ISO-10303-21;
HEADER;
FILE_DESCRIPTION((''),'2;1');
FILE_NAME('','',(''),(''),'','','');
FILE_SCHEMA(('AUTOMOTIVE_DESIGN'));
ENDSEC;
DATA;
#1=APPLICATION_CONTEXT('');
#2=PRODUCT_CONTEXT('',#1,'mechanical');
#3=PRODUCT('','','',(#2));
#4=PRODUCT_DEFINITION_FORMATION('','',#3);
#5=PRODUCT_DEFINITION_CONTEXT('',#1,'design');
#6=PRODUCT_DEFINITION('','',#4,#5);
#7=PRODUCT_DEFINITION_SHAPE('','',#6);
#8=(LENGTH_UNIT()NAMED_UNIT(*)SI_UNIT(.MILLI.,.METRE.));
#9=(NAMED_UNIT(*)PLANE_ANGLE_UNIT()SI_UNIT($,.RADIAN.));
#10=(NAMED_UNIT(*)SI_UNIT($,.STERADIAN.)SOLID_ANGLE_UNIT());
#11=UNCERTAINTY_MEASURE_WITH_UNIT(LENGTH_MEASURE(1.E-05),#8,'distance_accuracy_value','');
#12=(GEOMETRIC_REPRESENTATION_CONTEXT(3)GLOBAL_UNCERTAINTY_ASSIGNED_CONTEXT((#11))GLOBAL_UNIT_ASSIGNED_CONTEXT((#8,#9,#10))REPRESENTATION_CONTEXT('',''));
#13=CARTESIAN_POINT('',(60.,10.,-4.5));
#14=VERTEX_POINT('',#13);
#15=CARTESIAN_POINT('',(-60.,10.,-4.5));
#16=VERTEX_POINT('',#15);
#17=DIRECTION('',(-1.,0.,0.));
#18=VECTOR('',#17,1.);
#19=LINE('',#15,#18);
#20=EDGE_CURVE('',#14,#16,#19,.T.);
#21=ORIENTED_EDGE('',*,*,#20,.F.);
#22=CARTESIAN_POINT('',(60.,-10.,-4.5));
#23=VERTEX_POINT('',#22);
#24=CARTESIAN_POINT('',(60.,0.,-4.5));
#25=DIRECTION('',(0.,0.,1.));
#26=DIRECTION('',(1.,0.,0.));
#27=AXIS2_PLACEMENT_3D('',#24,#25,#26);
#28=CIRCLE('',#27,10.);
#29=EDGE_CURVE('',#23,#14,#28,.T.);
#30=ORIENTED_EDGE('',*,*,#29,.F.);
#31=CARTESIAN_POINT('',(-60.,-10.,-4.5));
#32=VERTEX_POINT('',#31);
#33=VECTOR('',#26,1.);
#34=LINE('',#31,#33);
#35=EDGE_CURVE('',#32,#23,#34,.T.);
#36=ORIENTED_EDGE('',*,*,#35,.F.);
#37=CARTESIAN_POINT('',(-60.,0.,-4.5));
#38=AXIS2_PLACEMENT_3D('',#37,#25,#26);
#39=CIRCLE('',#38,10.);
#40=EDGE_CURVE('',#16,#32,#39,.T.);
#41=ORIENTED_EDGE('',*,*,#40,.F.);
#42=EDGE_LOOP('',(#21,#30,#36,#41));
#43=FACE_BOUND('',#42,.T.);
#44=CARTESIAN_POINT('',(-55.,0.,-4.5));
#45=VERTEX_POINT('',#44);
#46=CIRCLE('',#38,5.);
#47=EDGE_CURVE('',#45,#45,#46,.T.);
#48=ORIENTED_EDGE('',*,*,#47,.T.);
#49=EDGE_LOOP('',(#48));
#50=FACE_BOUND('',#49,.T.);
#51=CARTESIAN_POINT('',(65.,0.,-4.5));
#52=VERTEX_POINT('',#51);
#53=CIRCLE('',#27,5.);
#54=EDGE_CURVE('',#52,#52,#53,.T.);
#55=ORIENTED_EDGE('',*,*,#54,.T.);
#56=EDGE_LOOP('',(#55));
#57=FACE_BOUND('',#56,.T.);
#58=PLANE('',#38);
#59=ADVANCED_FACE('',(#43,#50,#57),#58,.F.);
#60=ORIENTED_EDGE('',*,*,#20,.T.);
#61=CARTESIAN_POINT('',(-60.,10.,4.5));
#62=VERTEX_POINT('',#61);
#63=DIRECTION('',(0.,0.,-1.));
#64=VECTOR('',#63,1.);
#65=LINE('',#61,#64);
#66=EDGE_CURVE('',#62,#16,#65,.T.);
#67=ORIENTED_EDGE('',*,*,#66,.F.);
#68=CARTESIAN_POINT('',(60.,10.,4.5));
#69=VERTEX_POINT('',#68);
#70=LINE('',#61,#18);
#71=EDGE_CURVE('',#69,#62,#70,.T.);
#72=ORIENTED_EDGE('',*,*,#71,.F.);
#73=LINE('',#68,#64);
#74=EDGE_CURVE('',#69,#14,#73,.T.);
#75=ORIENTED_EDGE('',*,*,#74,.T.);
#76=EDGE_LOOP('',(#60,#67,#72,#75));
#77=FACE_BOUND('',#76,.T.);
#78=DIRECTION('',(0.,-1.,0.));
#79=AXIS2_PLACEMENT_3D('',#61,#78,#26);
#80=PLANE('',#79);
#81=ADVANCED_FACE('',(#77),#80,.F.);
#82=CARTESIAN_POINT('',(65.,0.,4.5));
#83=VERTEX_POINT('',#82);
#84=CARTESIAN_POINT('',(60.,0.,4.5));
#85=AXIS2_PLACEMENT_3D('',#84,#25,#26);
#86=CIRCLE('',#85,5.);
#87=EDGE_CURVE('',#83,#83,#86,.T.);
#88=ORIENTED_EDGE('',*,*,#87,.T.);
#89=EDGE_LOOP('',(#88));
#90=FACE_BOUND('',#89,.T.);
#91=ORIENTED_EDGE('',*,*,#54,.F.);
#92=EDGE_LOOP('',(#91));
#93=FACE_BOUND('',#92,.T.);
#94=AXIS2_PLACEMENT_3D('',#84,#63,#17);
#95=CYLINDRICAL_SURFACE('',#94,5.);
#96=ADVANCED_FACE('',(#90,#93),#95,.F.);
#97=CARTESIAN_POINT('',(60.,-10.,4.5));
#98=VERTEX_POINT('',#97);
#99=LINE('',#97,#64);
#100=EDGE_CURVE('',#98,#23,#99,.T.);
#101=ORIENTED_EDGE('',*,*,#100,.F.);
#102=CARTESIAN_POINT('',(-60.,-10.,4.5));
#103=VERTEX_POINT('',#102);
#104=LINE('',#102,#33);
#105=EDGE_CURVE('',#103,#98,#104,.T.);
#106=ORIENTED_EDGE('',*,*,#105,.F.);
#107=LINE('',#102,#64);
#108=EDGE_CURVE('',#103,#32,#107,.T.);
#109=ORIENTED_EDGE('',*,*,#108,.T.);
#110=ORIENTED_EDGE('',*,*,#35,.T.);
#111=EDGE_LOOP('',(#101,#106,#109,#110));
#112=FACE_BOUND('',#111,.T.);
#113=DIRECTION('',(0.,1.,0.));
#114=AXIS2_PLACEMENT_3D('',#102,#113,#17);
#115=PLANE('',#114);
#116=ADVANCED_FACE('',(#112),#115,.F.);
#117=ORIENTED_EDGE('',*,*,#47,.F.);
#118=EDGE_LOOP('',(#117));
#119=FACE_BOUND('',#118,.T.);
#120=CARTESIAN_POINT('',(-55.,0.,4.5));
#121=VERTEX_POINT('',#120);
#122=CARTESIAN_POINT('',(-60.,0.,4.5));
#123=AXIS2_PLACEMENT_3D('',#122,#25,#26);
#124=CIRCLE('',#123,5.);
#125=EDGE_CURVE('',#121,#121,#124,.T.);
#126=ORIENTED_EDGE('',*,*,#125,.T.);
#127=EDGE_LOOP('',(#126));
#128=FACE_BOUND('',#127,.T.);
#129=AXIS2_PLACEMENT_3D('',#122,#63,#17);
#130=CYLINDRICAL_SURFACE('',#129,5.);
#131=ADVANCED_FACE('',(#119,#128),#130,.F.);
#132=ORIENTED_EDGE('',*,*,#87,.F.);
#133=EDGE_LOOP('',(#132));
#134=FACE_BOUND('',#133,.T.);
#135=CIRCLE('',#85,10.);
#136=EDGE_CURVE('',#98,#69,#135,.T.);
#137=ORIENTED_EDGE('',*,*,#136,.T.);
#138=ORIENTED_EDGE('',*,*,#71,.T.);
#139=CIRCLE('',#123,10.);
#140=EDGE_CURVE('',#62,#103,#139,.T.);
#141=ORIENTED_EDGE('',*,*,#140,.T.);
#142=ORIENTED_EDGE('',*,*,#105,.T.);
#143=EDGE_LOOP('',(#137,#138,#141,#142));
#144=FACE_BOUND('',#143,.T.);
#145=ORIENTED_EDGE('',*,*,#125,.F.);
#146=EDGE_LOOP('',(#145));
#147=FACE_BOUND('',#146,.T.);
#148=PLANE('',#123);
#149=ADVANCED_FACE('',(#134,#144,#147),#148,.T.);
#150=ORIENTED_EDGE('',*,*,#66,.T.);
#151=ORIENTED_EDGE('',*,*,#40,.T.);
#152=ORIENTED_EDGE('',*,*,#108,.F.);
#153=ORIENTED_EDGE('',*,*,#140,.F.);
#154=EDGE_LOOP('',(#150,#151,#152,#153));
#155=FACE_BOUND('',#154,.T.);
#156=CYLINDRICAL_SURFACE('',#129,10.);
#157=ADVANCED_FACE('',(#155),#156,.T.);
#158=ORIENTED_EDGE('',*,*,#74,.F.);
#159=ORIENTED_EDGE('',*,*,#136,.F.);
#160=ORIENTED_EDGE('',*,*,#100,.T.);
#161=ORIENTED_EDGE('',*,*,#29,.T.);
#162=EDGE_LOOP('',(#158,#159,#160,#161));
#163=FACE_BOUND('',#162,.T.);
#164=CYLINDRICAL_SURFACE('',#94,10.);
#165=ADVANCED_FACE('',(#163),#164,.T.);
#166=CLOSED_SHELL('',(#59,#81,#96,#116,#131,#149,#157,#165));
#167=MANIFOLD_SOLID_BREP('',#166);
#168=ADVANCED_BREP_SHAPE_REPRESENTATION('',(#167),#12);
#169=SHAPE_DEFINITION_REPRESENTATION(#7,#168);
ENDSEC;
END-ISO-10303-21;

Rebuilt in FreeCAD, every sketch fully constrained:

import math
import FreeCAD as App
import Part
import Sketcher

V = App.Vector

doc = App.newDocument("Part")
body = doc.addObject("PartDesign::Body", "Body")

# Sketch on XY plane
sketch1 = doc.addObject("Sketcher::SketchObject", "Sketch")
body.addObject(sketch1)
sketch1.AttachmentSupport = (doc.XY_Plane, [""])
sketch1.MapMode = "FlatFace"
sketch1.addGeometry([
    Part.LineSegment(V(60, 10, 0), V(-60, 10, 0)),  # 0
    Part.ArcOfCircle(Part.Circle(V(-60, 0, 0), V(0, 0, 1), 10), math.radians(90), math.radians(270)),  # 1
    Part.LineSegment(V(-60, -10, 0), V(60, -10, 0)),  # 2
    Part.ArcOfCircle(Part.Circle(V(60, 0, 0), V(0, 0, 1), 10), math.radians(-90), math.radians(90)),  # 3
    Part.Circle(V(60, 0, 0), V(0, 0, 1), 5),  # 4
    Part.Circle(V(-60, 0, 0), V(0, 0, 1), 5),  # 5
], False)
sketch1.addConstraint([
    Sketcher.Constraint("Tangent", 0, 2, 1, 1),
    Sketcher.Constraint("Tangent", 1, 2, 2, 1),
    Sketcher.Constraint("Tangent", 2, 2, 3, 1),
    Sketcher.Constraint("Tangent", 3, 2, 0, 1),
    Sketcher.Constraint("Horizontal", 0),
    Sketcher.Constraint("Horizontal", 2),
    Sketcher.Constraint("Coincident", 4, 3, 3, 3),
    Sketcher.Constraint("Coincident", 5, 3, 1, 3),
    Sketcher.Constraint("Equal", 4, 5),
    Sketcher.Constraint("Symmetric", 1, 3, 3, 3, -1, 1),
    Sketcher.Constraint("Diameter", 4, 10.0),
    Sketcher.Constraint("Radius", 1, 10.0),
    Sketcher.Constraint("DistanceX", 0, 2, 0, 1, 120.0),
])
pad1 = doc.addObject("PartDesign::Pad", "Pad")
body.addObject(pad1)
pad1.Profile = sketch1
pad1.Length = 9
pad1.Midplane = True

doc.recompute()
